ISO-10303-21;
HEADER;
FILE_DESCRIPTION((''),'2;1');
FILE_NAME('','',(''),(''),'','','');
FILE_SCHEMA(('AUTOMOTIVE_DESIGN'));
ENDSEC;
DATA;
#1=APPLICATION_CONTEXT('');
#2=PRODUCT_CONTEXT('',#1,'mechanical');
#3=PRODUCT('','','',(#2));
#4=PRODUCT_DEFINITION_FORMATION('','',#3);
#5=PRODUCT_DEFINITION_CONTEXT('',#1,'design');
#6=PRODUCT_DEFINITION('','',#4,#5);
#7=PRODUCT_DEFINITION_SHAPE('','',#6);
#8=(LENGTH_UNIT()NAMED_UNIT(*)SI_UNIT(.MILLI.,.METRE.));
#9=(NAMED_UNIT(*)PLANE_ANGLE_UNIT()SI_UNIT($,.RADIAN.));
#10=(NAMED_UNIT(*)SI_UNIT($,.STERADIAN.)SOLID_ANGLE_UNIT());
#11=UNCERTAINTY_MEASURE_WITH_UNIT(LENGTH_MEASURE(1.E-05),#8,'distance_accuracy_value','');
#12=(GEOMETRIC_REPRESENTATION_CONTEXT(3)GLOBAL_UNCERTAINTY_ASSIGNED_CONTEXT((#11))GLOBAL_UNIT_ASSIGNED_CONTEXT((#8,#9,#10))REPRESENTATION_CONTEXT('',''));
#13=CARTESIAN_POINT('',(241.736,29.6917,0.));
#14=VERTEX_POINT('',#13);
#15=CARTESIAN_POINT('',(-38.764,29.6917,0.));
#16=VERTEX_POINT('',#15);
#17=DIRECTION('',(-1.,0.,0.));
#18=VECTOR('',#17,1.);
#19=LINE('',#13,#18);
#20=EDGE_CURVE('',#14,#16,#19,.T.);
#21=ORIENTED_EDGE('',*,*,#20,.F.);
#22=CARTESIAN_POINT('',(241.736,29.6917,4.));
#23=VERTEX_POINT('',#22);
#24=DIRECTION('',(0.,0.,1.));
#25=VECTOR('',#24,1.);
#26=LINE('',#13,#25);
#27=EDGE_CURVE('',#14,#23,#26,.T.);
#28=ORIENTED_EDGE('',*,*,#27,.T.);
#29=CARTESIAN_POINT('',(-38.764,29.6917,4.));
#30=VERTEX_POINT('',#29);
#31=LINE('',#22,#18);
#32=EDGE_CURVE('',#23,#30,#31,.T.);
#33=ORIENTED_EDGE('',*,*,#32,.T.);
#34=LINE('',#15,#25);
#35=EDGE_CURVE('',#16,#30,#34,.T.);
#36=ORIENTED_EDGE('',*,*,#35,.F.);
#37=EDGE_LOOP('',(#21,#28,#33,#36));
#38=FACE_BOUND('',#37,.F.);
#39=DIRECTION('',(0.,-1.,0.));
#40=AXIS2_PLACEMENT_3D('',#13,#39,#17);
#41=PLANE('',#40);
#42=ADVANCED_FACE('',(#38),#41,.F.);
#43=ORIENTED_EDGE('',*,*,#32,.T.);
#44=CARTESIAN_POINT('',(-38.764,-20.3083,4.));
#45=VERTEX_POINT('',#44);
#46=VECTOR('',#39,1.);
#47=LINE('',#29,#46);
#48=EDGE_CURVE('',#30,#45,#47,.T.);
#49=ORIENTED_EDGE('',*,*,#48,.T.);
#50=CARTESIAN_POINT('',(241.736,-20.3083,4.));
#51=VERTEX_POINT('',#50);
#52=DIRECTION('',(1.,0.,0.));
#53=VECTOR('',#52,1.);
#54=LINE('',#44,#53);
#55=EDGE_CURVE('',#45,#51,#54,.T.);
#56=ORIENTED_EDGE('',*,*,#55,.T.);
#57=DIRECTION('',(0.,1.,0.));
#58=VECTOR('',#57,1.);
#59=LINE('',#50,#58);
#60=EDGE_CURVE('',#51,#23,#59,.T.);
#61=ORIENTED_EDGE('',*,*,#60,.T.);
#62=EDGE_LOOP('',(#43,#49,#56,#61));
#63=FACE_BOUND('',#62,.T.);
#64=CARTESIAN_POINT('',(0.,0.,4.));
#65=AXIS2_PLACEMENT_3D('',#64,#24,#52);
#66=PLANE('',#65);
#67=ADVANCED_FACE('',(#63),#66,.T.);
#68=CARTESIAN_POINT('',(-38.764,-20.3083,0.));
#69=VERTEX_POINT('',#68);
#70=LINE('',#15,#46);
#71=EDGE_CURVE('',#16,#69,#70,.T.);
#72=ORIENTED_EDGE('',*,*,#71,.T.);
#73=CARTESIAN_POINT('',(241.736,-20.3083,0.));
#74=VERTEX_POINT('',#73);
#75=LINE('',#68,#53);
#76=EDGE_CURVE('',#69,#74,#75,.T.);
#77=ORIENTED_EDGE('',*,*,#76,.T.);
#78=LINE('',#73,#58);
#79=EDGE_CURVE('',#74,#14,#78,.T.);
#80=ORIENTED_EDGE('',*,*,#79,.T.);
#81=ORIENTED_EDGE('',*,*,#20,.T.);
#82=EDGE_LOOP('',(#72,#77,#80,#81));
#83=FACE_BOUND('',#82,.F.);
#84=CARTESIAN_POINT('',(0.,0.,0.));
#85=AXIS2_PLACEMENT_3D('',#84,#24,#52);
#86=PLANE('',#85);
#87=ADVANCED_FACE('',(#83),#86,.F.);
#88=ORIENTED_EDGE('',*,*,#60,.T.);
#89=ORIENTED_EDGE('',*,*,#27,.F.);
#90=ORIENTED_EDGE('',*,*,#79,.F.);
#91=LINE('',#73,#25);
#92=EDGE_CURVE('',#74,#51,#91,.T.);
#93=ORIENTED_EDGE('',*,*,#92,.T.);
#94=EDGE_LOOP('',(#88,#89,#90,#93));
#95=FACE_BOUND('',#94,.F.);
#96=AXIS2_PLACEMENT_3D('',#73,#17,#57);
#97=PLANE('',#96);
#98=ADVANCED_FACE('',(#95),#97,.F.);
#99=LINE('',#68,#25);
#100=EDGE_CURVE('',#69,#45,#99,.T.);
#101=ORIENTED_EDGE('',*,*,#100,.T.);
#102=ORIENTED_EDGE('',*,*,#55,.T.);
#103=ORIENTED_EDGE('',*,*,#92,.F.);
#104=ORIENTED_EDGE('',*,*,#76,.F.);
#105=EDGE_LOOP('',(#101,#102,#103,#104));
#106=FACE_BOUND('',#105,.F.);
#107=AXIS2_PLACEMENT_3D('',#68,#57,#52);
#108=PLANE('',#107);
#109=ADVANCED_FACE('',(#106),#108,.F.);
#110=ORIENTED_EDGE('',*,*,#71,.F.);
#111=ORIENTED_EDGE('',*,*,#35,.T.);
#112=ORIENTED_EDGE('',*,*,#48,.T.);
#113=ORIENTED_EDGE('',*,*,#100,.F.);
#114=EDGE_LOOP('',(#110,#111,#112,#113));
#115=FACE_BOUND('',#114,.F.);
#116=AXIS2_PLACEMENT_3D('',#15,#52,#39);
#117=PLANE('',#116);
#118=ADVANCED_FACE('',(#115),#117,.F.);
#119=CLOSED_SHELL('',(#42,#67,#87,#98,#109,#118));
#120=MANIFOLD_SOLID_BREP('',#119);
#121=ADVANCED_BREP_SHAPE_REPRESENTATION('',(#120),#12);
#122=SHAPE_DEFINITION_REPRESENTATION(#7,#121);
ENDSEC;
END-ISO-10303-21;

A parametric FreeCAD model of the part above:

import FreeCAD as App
import Part
import Sketcher


def add_polygon(sketch, points):
    """Adds a closed chain of lines whose ends are joined by coincident constraints."""
    first, n = sketch.GeometryCount, len(points)
    for a, b in zip(points, points[1:] + points[:1]):
        sketch.addGeometry(Part.LineSegment(App.Vector(*a, 0), App.Vector(*b, 0)), False)
    for i in range(n):
        sketch.addConstraint(Sketcher.Constraint("Coincident", first + i, 2, first + (i + 1) % n, 1))

doc = App.newDocument("Part")
body = doc.addObject("PartDesign::Body", "Body")

sketch1 = body.newObject("Sketcher::SketchObject", "Sketch")
sketch1.AttachmentSupport = (doc.getObject("XY_Plane"), [""])
sketch1.MapMode = "FlatFace"
add_polygon(sketch1, [(-38.764, 29.6917), (-38.764, -20.3083), (241.736, -20.3083), (241.736, 29.6917)])
sketch1.addConstraint([
    Sketcher.Constraint("Vertical", 0),
    Sketcher.Constraint("Horizontal", 1),
    Sketcher.Constraint("Vertical", 2),
    Sketcher.Constraint("Horizontal", 3),
    Sketcher.Constraint("DistanceY", 0, 2, 0, 1, 50.0),
    Sketcher.Constraint("DistanceX", 1, 1, 1, 2, 280.5),
    Sketcher.Constraint("DistanceX", 0, 2, -1, 1, 38.764),
    Sketcher.Constraint("DistanceY", 0, 2, -1, 1, 20.3083),
])
pad1 = body.newObject("PartDesign::Pad", "Pad")
pad1.Profile = sketch1
pad1.Length = 4

doc.recompute()
